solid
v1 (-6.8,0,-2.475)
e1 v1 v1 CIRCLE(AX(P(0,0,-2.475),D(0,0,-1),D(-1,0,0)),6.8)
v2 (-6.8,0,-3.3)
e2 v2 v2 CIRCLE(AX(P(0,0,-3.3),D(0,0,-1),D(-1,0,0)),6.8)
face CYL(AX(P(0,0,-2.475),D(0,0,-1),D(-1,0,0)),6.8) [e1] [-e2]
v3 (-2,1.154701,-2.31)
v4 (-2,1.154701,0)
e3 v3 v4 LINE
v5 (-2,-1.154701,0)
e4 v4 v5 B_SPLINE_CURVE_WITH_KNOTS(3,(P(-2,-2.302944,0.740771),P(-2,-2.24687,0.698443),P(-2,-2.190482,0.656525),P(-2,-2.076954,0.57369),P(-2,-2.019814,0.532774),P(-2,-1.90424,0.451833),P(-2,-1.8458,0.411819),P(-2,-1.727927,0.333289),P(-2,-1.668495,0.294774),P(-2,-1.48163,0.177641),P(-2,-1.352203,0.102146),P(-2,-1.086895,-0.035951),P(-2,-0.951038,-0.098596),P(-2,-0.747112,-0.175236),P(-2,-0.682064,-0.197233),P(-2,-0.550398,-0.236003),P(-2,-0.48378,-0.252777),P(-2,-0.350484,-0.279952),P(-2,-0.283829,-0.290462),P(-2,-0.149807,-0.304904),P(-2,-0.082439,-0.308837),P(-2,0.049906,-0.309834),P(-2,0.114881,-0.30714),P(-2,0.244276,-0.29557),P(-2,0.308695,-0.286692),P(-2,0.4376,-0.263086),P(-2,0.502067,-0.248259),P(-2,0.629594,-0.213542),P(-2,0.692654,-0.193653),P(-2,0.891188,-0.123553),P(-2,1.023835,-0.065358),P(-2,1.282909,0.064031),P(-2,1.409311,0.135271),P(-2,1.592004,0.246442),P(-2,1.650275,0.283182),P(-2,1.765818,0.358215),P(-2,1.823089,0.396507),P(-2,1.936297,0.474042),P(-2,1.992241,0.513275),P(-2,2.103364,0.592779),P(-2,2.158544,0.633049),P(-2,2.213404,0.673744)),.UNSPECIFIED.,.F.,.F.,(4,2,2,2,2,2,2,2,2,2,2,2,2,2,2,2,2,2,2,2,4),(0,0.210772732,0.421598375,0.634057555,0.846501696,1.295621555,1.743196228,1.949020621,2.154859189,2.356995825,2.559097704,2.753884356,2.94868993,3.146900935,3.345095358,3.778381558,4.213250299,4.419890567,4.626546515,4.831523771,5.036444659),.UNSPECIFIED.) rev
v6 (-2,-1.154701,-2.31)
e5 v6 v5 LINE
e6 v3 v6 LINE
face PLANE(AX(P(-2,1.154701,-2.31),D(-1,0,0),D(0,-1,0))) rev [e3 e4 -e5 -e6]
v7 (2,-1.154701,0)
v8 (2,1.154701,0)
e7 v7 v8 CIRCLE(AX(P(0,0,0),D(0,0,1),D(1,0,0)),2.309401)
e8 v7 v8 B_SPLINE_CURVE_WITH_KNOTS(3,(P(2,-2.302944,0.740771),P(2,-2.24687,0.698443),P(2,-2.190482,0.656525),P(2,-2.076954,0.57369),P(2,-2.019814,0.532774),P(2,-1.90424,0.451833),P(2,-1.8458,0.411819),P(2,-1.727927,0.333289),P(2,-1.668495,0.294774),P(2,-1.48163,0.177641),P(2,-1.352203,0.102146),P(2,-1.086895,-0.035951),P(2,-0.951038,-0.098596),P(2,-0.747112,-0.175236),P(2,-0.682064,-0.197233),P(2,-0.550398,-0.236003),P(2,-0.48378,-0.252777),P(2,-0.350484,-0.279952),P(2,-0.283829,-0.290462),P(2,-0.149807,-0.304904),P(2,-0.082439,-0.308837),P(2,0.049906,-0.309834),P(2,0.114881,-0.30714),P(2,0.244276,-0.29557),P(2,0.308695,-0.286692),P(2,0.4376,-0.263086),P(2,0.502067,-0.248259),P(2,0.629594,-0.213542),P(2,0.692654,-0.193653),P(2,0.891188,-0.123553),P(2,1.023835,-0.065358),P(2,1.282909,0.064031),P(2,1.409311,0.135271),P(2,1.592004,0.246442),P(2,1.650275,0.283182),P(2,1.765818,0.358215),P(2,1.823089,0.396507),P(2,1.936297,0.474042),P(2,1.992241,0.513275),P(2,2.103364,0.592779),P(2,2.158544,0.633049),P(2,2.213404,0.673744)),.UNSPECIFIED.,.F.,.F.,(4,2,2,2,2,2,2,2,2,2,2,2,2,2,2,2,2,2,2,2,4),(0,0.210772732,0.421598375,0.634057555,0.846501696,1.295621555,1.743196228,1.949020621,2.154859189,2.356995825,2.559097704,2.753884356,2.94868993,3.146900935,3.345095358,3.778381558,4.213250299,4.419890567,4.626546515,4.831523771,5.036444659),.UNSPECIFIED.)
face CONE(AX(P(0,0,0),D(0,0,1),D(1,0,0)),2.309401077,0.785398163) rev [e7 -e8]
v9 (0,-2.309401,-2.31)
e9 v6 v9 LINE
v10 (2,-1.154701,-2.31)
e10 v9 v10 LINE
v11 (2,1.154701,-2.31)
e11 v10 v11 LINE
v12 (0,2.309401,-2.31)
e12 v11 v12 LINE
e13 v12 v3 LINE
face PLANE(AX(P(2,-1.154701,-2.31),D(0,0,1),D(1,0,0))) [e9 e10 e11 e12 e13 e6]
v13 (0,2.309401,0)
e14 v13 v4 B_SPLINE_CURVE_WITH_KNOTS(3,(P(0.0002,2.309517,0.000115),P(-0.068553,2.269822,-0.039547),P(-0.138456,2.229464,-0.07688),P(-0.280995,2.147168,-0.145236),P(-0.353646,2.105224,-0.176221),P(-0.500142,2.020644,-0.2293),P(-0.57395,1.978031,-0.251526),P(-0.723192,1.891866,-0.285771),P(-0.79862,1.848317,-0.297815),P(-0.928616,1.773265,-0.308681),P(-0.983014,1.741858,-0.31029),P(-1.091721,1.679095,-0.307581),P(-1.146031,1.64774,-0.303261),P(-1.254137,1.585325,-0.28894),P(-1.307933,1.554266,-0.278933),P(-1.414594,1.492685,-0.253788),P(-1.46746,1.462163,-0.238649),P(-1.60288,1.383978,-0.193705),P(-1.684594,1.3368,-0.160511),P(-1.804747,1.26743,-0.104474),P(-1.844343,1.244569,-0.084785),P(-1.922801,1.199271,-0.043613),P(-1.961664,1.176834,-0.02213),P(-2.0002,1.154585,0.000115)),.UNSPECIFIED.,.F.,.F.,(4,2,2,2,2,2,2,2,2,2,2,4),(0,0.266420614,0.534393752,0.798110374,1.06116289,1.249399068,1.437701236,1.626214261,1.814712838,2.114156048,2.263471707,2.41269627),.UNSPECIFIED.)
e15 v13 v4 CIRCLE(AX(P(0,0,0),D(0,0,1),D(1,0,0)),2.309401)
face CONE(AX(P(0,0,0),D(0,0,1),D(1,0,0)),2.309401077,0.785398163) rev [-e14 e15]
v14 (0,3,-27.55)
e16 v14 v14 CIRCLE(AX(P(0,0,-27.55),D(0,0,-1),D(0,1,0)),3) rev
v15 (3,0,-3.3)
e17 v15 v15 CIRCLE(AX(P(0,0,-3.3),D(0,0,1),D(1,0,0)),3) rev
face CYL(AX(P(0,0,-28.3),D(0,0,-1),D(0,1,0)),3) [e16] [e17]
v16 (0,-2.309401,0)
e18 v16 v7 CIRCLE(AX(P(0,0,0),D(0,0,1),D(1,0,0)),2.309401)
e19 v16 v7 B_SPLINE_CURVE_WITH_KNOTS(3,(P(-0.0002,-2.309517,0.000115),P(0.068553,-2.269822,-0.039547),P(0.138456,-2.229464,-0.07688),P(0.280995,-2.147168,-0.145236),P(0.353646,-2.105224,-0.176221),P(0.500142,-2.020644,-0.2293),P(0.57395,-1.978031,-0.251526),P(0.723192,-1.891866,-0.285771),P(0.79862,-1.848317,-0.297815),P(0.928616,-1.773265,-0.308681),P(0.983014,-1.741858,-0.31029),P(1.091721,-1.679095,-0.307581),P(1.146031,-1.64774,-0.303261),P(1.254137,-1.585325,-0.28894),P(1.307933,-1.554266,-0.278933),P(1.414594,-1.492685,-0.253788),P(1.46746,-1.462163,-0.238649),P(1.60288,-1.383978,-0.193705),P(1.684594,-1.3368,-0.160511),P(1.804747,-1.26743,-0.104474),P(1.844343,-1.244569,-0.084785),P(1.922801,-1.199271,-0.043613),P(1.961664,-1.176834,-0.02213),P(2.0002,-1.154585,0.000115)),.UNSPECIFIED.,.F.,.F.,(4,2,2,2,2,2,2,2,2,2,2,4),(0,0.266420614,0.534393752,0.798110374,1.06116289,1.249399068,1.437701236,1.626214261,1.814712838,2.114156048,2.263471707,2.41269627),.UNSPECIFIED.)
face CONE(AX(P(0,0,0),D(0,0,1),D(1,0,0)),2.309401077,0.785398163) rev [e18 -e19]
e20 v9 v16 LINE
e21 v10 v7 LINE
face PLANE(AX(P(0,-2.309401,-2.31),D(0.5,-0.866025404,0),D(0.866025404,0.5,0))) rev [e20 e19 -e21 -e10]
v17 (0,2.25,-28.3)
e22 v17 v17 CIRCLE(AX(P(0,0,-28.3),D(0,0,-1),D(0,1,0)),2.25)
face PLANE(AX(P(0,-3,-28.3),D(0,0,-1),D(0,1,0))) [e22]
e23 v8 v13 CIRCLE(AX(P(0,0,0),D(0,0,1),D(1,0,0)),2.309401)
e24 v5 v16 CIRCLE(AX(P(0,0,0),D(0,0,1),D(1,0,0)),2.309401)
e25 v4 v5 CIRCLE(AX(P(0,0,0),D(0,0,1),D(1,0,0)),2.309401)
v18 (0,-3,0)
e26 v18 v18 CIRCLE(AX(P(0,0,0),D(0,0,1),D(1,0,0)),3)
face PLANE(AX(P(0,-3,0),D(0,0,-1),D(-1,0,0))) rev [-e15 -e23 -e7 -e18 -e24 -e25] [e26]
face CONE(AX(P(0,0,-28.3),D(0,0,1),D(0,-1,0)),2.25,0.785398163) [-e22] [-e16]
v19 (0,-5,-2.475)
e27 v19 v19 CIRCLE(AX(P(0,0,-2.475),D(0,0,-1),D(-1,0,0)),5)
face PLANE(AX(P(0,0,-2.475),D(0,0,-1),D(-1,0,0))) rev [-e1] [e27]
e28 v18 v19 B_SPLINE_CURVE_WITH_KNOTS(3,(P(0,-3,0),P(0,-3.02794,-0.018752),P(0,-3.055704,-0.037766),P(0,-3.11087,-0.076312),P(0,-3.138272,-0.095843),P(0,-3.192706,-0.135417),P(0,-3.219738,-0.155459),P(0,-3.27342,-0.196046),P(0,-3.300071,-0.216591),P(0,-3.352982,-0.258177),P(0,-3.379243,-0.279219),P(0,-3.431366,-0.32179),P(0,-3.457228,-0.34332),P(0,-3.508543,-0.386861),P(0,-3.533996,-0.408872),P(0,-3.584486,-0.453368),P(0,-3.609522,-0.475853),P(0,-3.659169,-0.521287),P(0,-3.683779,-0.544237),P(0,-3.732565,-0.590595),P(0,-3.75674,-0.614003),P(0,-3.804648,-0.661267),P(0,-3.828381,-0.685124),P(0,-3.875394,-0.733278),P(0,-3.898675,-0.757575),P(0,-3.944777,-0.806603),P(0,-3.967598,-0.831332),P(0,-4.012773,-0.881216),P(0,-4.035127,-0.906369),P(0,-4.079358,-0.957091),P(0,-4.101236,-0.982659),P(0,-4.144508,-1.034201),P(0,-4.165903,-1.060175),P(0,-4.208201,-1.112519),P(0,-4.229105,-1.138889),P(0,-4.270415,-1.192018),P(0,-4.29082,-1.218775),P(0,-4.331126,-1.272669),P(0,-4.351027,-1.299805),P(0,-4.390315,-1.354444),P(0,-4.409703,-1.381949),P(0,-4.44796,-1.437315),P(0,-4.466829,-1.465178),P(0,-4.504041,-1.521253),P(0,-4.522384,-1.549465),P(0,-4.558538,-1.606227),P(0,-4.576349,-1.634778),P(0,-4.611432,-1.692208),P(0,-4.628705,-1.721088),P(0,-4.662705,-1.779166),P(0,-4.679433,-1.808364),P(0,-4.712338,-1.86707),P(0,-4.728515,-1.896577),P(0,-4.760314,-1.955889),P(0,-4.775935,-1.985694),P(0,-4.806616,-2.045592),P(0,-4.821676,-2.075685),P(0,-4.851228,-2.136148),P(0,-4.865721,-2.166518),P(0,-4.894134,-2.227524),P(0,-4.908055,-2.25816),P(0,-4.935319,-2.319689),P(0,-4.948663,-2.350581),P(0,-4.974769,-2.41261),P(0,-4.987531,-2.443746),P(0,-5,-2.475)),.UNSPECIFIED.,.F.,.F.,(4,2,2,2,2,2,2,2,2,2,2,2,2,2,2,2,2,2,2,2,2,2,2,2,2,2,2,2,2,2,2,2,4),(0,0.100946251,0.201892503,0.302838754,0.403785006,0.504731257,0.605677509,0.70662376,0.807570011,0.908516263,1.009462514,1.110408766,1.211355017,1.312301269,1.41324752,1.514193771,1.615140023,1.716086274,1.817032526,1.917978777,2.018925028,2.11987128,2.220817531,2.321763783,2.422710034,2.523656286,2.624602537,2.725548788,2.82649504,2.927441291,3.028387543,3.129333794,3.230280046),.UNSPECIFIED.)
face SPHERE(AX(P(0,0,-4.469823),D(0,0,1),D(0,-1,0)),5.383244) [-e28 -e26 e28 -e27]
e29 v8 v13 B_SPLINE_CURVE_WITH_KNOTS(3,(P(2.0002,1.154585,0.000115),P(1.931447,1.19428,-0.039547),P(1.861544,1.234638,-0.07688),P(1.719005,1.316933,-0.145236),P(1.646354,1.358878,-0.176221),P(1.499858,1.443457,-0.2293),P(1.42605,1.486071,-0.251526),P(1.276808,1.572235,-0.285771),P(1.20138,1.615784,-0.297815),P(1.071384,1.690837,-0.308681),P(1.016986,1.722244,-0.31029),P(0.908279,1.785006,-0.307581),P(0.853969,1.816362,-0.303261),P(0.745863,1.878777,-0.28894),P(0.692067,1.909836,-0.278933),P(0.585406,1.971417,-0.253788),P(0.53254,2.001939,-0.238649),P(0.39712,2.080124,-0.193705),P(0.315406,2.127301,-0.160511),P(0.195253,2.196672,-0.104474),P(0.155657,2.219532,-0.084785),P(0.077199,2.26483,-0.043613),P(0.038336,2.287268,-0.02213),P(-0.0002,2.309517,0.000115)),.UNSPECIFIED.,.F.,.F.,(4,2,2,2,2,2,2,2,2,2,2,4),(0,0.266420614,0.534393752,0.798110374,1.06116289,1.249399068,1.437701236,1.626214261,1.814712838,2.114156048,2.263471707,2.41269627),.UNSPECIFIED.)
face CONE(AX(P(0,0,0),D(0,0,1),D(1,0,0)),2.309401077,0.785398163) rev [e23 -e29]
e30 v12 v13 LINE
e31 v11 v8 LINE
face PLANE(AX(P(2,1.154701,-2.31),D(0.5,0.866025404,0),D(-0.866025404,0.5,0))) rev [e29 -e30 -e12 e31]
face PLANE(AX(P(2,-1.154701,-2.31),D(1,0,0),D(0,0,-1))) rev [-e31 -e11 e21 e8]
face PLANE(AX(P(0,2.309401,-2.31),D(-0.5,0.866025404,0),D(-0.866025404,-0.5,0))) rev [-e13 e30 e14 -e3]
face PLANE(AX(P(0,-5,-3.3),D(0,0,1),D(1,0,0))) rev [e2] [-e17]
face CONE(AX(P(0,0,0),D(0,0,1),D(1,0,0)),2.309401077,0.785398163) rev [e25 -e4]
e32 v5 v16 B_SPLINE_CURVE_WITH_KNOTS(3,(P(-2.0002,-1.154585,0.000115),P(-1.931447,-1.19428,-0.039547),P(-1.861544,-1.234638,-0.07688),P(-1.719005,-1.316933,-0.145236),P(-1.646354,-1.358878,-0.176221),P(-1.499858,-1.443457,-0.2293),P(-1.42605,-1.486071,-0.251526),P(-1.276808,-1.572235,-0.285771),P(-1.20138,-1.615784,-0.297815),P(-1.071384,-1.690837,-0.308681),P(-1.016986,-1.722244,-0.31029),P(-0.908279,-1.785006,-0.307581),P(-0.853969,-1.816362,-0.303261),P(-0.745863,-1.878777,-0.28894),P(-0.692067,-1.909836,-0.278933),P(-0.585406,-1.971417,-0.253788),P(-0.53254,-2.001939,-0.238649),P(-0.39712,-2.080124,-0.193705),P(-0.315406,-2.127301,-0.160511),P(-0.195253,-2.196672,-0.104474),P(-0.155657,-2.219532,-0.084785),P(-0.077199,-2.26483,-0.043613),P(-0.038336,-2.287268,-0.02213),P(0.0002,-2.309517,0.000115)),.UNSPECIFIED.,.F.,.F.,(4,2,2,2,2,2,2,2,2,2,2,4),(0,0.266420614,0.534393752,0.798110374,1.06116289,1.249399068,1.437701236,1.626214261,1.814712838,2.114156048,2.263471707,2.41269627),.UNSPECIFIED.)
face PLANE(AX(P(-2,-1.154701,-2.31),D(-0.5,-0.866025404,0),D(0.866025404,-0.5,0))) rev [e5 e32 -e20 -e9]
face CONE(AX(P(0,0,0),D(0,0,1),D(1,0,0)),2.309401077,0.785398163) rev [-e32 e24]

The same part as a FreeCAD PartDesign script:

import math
import FreeCAD as App
import Part
import Sketcher
from FreeCAD import Vector
Q = App.Units.Quantity


def edges_at(feature, points):
    """Names of the edges that pass closest to the given points."""
    edges = feature.Shape.Edges
    near = lambda p: min(range(len(edges)), key=lambda i: edges[i].distToShape(Part.Vertex(*p))[0])
    return sorted({f"Edge{near(p) + 1}" for p in points})


def add_polygon(sketch, points):
    """Adds a closed chain of lines whose ends are joined by coincident constraints."""
    first, n = sketch.GeometryCount, len(points)
    for a, b in zip(points, points[1:] + points[:1]):
        sketch.addGeometry(Part.LineSegment(App.Vector(*a, 0), App.Vector(*b, 0)), False)
    for i in range(n):
        sketch.addConstraint(Sketcher.Constraint("Coincident", first + i, 2, first + (i + 1) % n, 1))

doc = App.newDocument("Part")
body = doc.addObject("PartDesign::Body", "Body")

# Sketch on YZ plane
sketch1 = doc.addObject("Sketcher::SketchObject", "Sketch")
body.addObject(sketch1)
sketch1.AttachmentSupport = (doc.YZ_Plane, [""])
sketch1.MapMode = "FlatFace"
add_polygon(sketch1, [(3, -3.3), (0, -3.3), (0, -28.3), (3, -28.3)])  # lines 0-3
sketch1.addConstraint(Sketcher.Constraint("Horizontal", 0))
sketch1.addConstraint(Sketcher.Constraint("Vertical", 1))
sketch1.addConstraint(Sketcher.Constraint("Horizontal", 2))
sketch1.addConstraint(Sketcher.Constraint("Vertical", 3))
sketch1.addConstraint(Sketcher.Constraint("PointOnObject", 0, 2, -2))
sketch1.addConstraint(Sketcher.Constraint("DistanceX", 0, 2, 0, 1, Q("3 mm")))
sketch1.addConstraint(Sketcher.Constraint("DistanceY", 1, 2, 1, 1, Q("25 mm")))
sketch1.addConstraint(Sketcher.Constraint("DistanceY", 0, 2, -1, 1, Q("3.3 mm")))
revolution = doc.addObject("PartDesign::Revolution", "Revolution")
body.addObject(revolution)
revolution.Profile = sketch1
revolution.ReferenceAxis = (sketch1, ["V_Axis"])
revolution.Angle = 360
doc.recompute()

chamfer = doc.addObject("PartDesign::Chamfer", "Chamfer")
body.addObject(chamfer)
chamfer.Base = (revolution, edges_at(revolution, [(0, -3, -28.3)]))
chamfer.Size = 0.75

# Sketch on YZ plane
sketch2 = doc.addObject("Sketcher::SketchObject", "Sketch001")
body.addObject(sketch2)
sketch2.AttachmentSupport = (doc.YZ_Plane, [""])
sketch2.MapMode = "FlatFace"
sketch2.addGeometry(Part.LineSegment(Vector(5, -3.3, 0), Vector(5, -2.475, 0)), False)
sketch2.addGeometry(Part.ArcOfCircle(Part.Circle(Vector(0, -4.469823, 0), Vector(0, 0, 1), 5.383244), math.radians(21.750252), math.radians(56.131772)), False)
sketch2.addGeometry(Part.LineSegment(Vector(3, 0, 0), Vector(0, 0, 0)), False)
sketch2.addGeometry(Part.LineSegment(Vector(0, 0, 0), Vector(0, -3.3, 0)), False)
sketch2.addGeometry(Part.LineSegment(Vector(0, -3.3, 0), Vector(5, -3.3, 0)), False)
sketch2.addConstraint(Sketcher.Constraint("Coincident", 0, 2, 1, 1))
sketch2.addConstraint(Sketcher.Constraint("Coincident", 1, 2, 2, 1))
sketch2.addConstraint(Sketcher.Constraint("Coincident", 2, 2, 3, 1))
sketch2.addConstraint(Sketcher.Constraint("Coincident", 3, 2, 4, 1))
sketch2.addConstraint(Sketcher.Constraint("Coincident", 4, 2, 0, 1))
sketch2.addConstraint(Sketcher.Constraint("Vertical", 0))
sketch2.addConstraint(Sketcher.Constraint("Horizontal", 2))
sketch2.addConstraint(Sketcher.Constraint("Vertical", 3))
sketch2.addConstraint(Sketcher.Constraint("Horizontal", 4))
sketch2.addConstraint(Sketcher.Constraint("Coincident", 2, 2, -1, 1))
sketch2.addConstraint(Sketcher.Constraint("PointOnObject", 1, 3, -2))
sketch2.addConstraint(Sketcher.Constraint("DistanceX", 2, 2, 2, 1, Q("3 mm")))
sketch2.addConstraint(Sketcher.Constraint("DistanceX", 4, 1, 4, 2, Q("5 mm")))
sketch2.addConstraint(Sketcher.Constraint("DistanceY", 3, 2, 3, 1, Q("3.3 mm")))
sketch2.addConstraint(Sketcher.Constraint("DistanceY", 0, 1, 0, 2, Q("0.825 mm")))
revolution2 = doc.addObject("PartDesign::Revolution", "Revolution001")
body.addObject(revolution2)
revolution2.Profile = sketch2
revolution2.ReferenceAxis = (sketch2, ["V_Axis"])
revolution2.Angle = 360

# Sketch on XY plane
sketch3 = doc.addObject("Sketcher::SketchObject", "Sketch002")
body.addObject(sketch3)
sketch3.AttachmentSupport = (doc.XY_Plane, [""])
sketch3.MapMode = "FlatFace"
sketch3.AttachmentOffset = App.Placement(Vector(0, 0, -3.3), App.Rotation())
sketch3.addGeometry(Part.Circle(Vector(0, 0, 0), Vector(0, 0, 1), 6.8), False)
sketch3.addConstraint(Sketcher.Constraint("Coincident", 0, 3, -1, 1))
sketch3.addConstraint(Sketcher.Constraint("Diameter", 0, Q("13.6 mm")))
pad1 = doc.addObject("PartDesign::Pad", "Pad")
body.addObject(pad1)
pad1.Profile = sketch3
pad1.Length = 0.825

# Sketch on XY plane
sketch4 = doc.addObject("Sketcher::SketchObject", "Sketch003")
body.addObject(sketch4)
sketch4.AttachmentSupport = (doc.XY_Plane, [""])
sketch4.MapMode = "FlatFace"
add_polygon(sketch4, [(2, -1.154701), (2, 1.154701), (0, 2.309401), (-2, 1.154701), (-2, -1.154701), (0, -2.309401)])  # lines 0-5
sketch4.addConstraint(Sketcher.Constraint("Vertical", 0))
sketch4.addConstraint(Sketcher.Constraint("Vertical", 3))
sketch4.addConstraint(Sketcher.Constraint("Symmetric", 0, 2, 3, 2, -1, 1))
sketch4.addConstraint(Sketcher.Constraint("Symmetric", 1, 2, 4, 2, -1, 1))
sketch4.addConstraint(Sketcher.Constraint("PointOnObject", 1, 2, -2))
sketch4.addConstraint(Sketcher.Constraint("Parallel", 2, 5))
sketch4.addConstraint(Sketcher.Constraint("Horizontal", 0, 2, 2, 2))
sketch4.addConstraint(Sketcher.Constraint("Angle", 1, Q("150 deg")))
sketch4.addConstraint(Sketcher.Constraint("DistanceX", -1, 1, 0, 2, Q("2 mm")))
sketch4.addConstraint(Sketcher.Constraint("DistanceY", 0, 1, 0, 2, Q("2.309401 mm")))
pocket1 = doc.addObject("PartDesign::Pocket", "Pocket")
body.addObject(pocket1)
pocket1.Profile = sketch4
pocket1.Length = 2.31

# Sketch on YZ plane
sketch5 = doc.addObject("Sketcher::SketchObject", "Sketch004")
body.addObject(sketch5)
sketch5.AttachmentSupport = (doc.YZ_Plane, [""])
sketch5.MapMode = "FlatFace"
add_polygon(sketch5, [(0, 0), (-2.309401, 0), (0, -2.309401)])  # lines 0-2
sketch5.addConstraint(Sketcher.Constraint("Horizontal", 0))
sketch5.addConstraint(Sketcher.Constraint("Vertical", 2))
sketch5.addConstraint(Sketcher.Constraint("Coincident", 2, 2, -1, 1))
sketch5.addConstraint(Sketcher.Constraint("Equal", 0, 2))
sketch5.addConstraint(Sketcher.Constraint("DistanceX", 0, 2, 0, 1, Q("2.309401 mm")))
groove = doc.addObject("PartDesign::Groove", "Groove")
body.addObject(groove)
groove.Profile = sketch5
groove.ReferenceAxis = (sketch5, ["V_Axis"])
groove.Angle = 360

doc.recompute()
